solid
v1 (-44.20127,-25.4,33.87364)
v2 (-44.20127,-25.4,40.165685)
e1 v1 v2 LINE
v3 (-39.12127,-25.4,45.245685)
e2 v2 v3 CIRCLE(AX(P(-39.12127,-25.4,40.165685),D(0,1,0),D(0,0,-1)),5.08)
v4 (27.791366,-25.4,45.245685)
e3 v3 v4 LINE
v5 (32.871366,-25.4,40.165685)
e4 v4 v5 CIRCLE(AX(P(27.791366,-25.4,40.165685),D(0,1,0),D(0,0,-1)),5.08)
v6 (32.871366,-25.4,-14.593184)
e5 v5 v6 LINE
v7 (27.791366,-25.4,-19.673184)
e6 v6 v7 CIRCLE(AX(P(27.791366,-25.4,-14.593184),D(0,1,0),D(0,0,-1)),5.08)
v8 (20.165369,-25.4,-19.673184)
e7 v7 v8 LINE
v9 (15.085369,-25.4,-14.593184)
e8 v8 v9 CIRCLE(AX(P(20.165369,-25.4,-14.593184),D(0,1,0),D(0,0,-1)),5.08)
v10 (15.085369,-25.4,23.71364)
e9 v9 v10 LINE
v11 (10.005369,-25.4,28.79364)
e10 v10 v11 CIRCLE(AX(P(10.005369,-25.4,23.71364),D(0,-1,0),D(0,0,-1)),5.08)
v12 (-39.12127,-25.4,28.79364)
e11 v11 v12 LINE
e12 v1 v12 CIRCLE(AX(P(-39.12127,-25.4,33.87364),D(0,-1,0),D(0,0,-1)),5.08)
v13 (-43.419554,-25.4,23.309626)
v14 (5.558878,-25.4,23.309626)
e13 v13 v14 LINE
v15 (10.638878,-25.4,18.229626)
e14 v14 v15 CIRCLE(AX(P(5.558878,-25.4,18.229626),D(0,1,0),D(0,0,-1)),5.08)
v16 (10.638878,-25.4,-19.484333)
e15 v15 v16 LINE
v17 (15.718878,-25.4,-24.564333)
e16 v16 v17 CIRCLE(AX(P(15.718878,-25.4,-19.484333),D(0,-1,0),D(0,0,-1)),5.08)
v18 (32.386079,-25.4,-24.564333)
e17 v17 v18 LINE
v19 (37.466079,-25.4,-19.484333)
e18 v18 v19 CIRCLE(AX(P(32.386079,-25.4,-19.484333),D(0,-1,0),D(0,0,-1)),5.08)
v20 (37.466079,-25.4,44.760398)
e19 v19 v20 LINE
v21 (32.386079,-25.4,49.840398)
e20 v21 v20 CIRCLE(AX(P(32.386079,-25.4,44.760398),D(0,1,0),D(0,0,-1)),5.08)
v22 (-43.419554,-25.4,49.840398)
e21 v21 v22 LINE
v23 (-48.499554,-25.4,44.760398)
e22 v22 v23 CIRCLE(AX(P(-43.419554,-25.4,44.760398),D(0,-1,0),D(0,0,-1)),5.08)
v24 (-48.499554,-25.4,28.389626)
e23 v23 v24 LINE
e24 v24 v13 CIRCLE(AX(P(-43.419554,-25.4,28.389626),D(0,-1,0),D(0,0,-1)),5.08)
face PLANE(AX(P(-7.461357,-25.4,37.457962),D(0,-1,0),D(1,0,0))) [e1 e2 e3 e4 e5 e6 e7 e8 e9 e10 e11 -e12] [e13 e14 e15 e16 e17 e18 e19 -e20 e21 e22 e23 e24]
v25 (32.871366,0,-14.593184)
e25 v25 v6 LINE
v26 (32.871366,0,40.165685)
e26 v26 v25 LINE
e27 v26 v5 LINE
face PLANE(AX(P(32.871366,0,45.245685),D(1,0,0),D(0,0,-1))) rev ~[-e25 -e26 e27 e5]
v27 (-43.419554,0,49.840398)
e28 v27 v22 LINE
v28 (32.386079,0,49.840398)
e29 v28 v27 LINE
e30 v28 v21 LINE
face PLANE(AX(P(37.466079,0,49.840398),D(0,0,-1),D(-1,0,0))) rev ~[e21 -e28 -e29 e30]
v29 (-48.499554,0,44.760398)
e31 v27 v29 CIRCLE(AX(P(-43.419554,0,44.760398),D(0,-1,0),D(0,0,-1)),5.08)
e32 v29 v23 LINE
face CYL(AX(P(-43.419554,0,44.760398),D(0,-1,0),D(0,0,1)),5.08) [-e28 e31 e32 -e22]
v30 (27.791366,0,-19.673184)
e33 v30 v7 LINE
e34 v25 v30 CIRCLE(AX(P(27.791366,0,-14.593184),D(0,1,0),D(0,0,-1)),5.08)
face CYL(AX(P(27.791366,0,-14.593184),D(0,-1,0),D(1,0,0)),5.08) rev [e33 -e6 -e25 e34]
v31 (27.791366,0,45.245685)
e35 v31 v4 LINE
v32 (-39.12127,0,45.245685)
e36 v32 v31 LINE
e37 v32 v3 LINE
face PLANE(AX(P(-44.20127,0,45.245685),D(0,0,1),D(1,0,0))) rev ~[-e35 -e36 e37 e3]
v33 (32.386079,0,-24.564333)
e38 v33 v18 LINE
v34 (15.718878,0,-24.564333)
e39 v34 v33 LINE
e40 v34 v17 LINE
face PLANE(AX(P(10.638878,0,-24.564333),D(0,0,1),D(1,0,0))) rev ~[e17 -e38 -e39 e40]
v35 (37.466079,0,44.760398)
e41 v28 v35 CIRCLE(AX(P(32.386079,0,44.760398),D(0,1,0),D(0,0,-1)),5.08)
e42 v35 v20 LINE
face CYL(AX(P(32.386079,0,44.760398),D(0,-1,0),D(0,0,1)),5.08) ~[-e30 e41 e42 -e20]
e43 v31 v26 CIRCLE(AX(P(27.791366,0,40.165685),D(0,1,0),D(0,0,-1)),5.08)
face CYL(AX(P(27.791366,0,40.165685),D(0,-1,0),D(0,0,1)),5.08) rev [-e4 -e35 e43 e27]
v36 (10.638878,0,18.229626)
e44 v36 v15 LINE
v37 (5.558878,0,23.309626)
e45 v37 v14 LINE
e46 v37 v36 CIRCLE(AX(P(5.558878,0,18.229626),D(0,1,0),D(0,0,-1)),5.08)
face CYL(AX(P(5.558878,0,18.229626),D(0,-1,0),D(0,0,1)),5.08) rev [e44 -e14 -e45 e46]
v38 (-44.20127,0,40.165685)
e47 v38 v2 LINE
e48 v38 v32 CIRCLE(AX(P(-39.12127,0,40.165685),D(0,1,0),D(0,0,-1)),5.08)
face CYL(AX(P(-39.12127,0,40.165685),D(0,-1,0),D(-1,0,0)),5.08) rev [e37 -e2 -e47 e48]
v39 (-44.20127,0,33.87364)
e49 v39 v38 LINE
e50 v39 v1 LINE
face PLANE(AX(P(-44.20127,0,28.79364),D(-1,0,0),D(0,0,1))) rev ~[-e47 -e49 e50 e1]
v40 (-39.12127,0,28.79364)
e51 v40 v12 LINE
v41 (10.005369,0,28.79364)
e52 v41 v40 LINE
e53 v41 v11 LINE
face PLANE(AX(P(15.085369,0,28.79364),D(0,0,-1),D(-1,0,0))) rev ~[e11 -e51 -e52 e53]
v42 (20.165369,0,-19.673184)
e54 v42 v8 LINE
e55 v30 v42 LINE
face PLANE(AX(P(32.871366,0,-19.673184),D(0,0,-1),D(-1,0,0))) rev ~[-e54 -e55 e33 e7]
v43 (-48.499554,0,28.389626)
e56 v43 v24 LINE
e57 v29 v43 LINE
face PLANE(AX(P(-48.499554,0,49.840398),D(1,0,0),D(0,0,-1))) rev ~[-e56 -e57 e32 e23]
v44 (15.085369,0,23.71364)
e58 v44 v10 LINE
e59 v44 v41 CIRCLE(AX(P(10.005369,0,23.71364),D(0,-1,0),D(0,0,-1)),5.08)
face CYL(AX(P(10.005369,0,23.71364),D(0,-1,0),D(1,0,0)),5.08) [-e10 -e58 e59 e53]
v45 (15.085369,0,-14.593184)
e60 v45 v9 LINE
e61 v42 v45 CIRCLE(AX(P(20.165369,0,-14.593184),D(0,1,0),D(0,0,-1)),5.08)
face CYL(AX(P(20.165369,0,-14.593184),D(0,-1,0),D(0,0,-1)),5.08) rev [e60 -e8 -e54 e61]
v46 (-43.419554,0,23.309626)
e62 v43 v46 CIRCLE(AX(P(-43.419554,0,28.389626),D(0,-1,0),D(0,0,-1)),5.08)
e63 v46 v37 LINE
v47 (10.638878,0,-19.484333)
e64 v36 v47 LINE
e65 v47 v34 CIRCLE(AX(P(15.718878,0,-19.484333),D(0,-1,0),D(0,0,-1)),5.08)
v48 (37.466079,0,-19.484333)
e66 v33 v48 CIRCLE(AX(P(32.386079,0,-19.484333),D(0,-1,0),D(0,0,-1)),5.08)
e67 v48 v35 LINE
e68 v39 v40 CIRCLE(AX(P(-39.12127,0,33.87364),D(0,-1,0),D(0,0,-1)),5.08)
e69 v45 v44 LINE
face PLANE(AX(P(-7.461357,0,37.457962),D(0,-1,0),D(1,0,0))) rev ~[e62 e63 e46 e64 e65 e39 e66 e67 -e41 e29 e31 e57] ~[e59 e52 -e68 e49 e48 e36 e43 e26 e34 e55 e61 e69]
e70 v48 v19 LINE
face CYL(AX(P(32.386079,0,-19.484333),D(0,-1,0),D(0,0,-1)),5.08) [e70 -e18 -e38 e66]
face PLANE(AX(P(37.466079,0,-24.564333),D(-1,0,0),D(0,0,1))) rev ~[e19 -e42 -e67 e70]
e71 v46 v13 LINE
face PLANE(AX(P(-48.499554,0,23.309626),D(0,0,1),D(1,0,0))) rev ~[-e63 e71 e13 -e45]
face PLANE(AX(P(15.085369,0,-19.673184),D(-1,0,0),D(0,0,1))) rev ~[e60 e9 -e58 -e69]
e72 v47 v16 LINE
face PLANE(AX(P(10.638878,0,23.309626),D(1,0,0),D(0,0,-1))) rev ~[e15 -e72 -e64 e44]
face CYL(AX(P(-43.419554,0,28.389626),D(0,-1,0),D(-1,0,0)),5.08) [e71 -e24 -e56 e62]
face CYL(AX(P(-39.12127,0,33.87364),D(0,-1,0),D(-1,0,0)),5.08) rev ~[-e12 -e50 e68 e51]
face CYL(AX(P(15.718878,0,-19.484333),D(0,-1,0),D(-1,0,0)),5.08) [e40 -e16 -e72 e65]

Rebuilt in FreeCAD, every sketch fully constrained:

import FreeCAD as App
import Part
import Sketcher

V = App.Vector
Q = App.Units.Quantity


def edges_at(feature, points):
    """Names of the edges that pass closest to the given points."""
    edges = feature.Shape.Edges
    near = lambda p: min(range(len(edges)), key=lambda i: edges[i].distToShape(Part.Vertex(*p))[0])
    return sorted({f"Edge{near(p) + 1}" for p in points})


def add_polygon(sketch, points):
    """Adds a closed chain of lines whose ends are joined by coincident constraints."""
    first, n = sketch.GeometryCount, len(points)
    for a, b in zip(points, points[1:] + points[:1]):
        sketch.addGeometry(Part.LineSegment(App.Vector(*a, 0), App.Vector(*b, 0)), False)
    for i in range(n):
        sketch.addConstraint(Sketcher.Constraint("Coincident", first + i, 2, first + (i + 1) % n, 1))

doc = App.newDocument("Part")
body = doc.addObject("PartDesign::Body", "Body")

# Sketch on XZ plane
sketch1 = doc.addObject("Sketcher::SketchObject", "Sketch")
body.addObject(sketch1)
sketch1.AttachmentSupport = (doc.XZ_Plane, [""])
sketch1.MapMode = "FlatFace"
add_polygon(sketch1, [(37, 50), (-48, 50), (-48, 23), (11, 23), (11, -25), (37, -25)])  # lines 0-5
add_polygon(sketch1, [(-44, 29), (-44, 45), (33, 45), (33, -20), (15, -20), (15, 29)])  # lines 6-11
sketch1.addConstraint(Sketcher.Constraint("Horizontal", 0))
sketch1.addConstraint(Sketcher.Constraint("Vertical", 1))
sketch1.addConstraint(Sketcher.Constraint("Horizontal", 2))
sketch1.addConstraint(Sketcher.Constraint("Vertical", 3))
sketch1.addConstraint(Sketcher.Constraint("Horizontal", 4))
sketch1.addConstraint(Sketcher.Constraint("Vertical", 5))
sketch1.addConstraint(Sketcher.Constraint("Vertical", 6))
sketch1.addConstraint(Sketcher.Constraint("Horizontal", 7))
sketch1.addConstraint(Sketcher.Constraint("Vertical", 8))
sketch1.addConstraint(Sketcher.Constraint("Horizontal", 9))
sketch1.addConstraint(Sketcher.Constraint("Vertical", 10))
sketch1.addConstraint(Sketcher.Constraint("Horizontal", 11))
sketch1.addConstraint(Sketcher.Constraint("DistanceX", 4, 1, 4, 2, Q("26.827201 mm")))
sketch1.addConstraint(Sketcher.Constraint("DistanceX", 11, 2, 11, 1, Q("59.286639 mm")))
sketch1.addConstraint(Sketcher.Constraint("DistanceY", 1, 2, 1, 1, Q("26.530772 mm")))
sketch1.addConstraint(Sketcher.Constraint("DistanceY", 3, 2, 3, 1, Q("47.873959 mm")))
sketch1.addConstraint(Sketcher.Constraint("DistanceY", 8, 2, 8, 1, Q("64.918869 mm")))
sketch1.addConstraint(Sketcher.Constraint("DistanceX", 0, 2, 0, 1, Q("85.965633 mm")))
sketch1.addConstraint(Sketcher.Constraint("DistanceX", 7, 1, 7, 2, Q("77.072636 mm")))
sketch1.addConstraint(Sketcher.Constraint("DistanceY", 6, 1, 6, 2, Q("16.452045 mm")))
sketch1.addConstraint(Sketcher.Constraint("DistanceX", -1, 1, 4, 2, Q("37.466079 mm")))
sketch1.addConstraint(Sketcher.Constraint("DistanceX", 6, 2, -1, 1, Q("44.20127 mm")))
sketch1.addConstraint(Sketcher.Constraint("DistanceY", -1, 1, 10, 2, Q("28.79364 mm")))
sketch1.addConstraint(Sketcher.Constraint("DistanceY", 1, 2, 6, 2, Q("21.936059 mm")))
pad1 = doc.addObject("PartDesign::Pad", "Pad")
body.addObject(pad1)
pad1.Profile = sketch1
pad1.Length = Q("1 in")
doc.recompute()

fillet = doc.addObject("PartDesign::Fillet", "Fillet")
body.addObject(fillet)
fillet.Base = (pad1, edges_at(pad1, [
    (-48.5, -12.7, 23.31),
    (10.639, -12.7, 23.31),
    (10.639, -12.7, -24.564),
    (37.466, -12.7, -24.564),
    (37.466, -12.7, 49.84),
    (-48.5, -12.7, 49.84),
    (32.871, -12.7, -19.673),
    (15.085, -12.7, 28.794),
    (15.085, -12.7, -19.673),
    (-44.201, -12.7, 45.246),
    (32.871, -12.7, 45.246),
    (-44.201, -12.7, 28.794),
]))
fillet.Radius = Q("0.2 in")

doc.recompute()
